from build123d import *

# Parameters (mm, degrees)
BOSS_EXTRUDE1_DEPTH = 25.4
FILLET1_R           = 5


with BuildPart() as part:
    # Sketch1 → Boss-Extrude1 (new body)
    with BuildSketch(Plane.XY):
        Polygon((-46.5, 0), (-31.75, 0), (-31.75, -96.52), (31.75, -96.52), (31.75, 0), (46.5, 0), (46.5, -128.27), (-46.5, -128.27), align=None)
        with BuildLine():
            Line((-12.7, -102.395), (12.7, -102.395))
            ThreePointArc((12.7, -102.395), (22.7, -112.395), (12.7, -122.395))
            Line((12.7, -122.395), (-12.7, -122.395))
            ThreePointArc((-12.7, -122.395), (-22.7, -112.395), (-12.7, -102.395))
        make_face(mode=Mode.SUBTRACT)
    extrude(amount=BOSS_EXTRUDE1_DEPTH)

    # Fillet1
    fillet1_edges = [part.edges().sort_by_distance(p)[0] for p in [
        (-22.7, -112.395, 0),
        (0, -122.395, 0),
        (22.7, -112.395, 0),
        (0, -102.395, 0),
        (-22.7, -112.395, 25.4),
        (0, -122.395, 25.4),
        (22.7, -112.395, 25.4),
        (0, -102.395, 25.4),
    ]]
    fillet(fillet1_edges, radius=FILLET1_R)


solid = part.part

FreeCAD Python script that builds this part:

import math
import FreeCAD as App
import Part
import Sketcher

V = App.Vector
Q = App.Units.Quantity


def edges_at(feature, points):
    """Names of the edges that pass closest to the given points."""
    edges = feature.Shape.Edges
    near = lambda p: min(range(len(edges)), key=lambda i: edges[i].distToShape(Part.Vertex(*p))[0])
    return sorted({f"Edge{near(p) + 1}" for p in points})


def add_polygon(sketch, points):
    """Adds a closed chain of lines whose ends are joined by coincident constraints."""
    first, n = sketch.GeometryCount, len(points)
    for a, b in zip(points, points[1:] + points[:1]):
        sketch.addGeometry(Part.LineSegment(App.Vector(*a, 0), App.Vector(*b, 0)), False)
    for i in range(n):
        sketch.addConstraint(Sketcher.Constraint("Coincident", first + i, 2, first + (i + 1) % n, 1))

doc = App.newDocument("Part")
body = doc.addObject("PartDesign::Body", "Body")

sketch1 = doc.addObject("Sketcher::SketchObject", "Sketch")
body.addObject(sketch1)
sketch1.AttachmentSupport = (doc.XY_Plane, [""])
sketch1.MapMode = "FlatFace"
add_polygon(sketch1, [(-32, 0), (-46, 0), (-46, -128), (46, -128), (46, 0), (32, 0), (32, -97), (-32, -97)])
sketch1.addGeometry(Part.LineSegment(V(-13, -102, 0), V(13, -102, 0)), False)
sketch1.addGeometry(Part.ArcOfCircle(Part.Circle(V(13, -112, 0), V(0, 0, 1), 10), math.radians(-90), math.radians(90)), False)
sketch1.addGeometry(Part.LineSegment(V(13, -122, 0), V(-13, -122, 0)), False)
sketch1.addGeometry(Part.ArcOfCircle(Part.Circle(V(-13, -112, 0), V(0, 0, 1), 10), math.radians(90), math.radians(270)), False)
sketch1.addConstraint(Sketcher.Constraint("Tangent", 8, 2, 9, 2))
sketch1.addConstraint(Sketcher.Constraint("Tangent", 9, 1, 10, 1))
sketch1.addConstraint(Sketcher.Constraint("Tangent", 10, 2, 11, 2))
sketch1.addConstraint(Sketcher.Constraint("Tangent", 11, 1, 8, 1))
sketch1.addConstraint(Sketcher.Constraint("Horizontal", 0))
sketch1.addConstraint(Sketcher.Constraint("Vertical", 1))
sketch1.addConstraint(Sketcher.Constraint("Horizontal", 2))
sketch1.addConstraint(Sketcher.Constraint("Vertical", 3))
sketch1.addConstraint(Sketcher.Constraint("Horizontal", 4))
sketch1.addConstraint(Sketcher.Constraint("Vertical", 5))
sketch1.addConstraint(Sketcher.Constraint("Horizontal", 6))
sketch1.addConstraint(Sketcher.Constraint("Vertical", 7))
sketch1.addConstraint(Sketcher.Constraint("Horizontal", 8))
sketch1.addConstraint(Sketcher.Constraint("Horizontal", 10))
sketch1.addConstraint(Sketcher.Constraint("Symmetric", 0, 2, 3, 2, -1, 1))
sketch1.addConstraint(Sketcher.Constraint("Symmetric", 4, 2, 7, 2, -2))
sketch1.addConstraint(Sketcher.Constraint("DistanceX", 8, 1, 8, 2, Q("1 in")))
sketch1.addConstraint(Sketcher.Constraint("DistanceX", 6, 2, 6, 1, Q("2.5 in")))
sketch1.addConstraint(Sketcher.Constraint("DistanceY", 5, 2, 5, 1, Q("3.8 in")))
sketch1.addConstraint(Sketcher.Constraint("DistanceY", 1, 2, 1, 1, Q("5.05 in")))
sketch1.addConstraint(Sketcher.Constraint("DistanceX", -1, 1, 9, 3, Q("0.5 in")))
sketch1.addConstraint(Sketcher.Constraint("Radius", 9, 10.0))
sketch1.addConstraint(Sketcher.Constraint("DistanceY", 9, 3, -1, 1, Q("4.425 in")))
sketch1.addConstraint(Sketcher.Constraint("DistanceX", 0, 2, 0, 1, 14.75))
pad1 = doc.addObject("PartDesign::Pad", "Pad")
body.addObject(pad1)
pad1.Profile = sketch1
pad1.Length = Q("1 in")
doc.recompute()

fillet = doc.addObject("PartDesign::Fillet", "Fillet")
body.addObject(fillet)
fillet.Base = (pad1, edges_at(pad1, [
    (-22.7, -112.395, 0),
    (0, -122.395, 0),
    (22.7, -112.395, 0),
    (0, -102.395, 0),
    (-22.7, -112.395, 25.4),
    (0, -122.395, 25.4),
    (22.7, -112.395, 25.4),
    (0, -102.395, 25.4),
]))
fillet.Radius = 5

doc.recompute()
